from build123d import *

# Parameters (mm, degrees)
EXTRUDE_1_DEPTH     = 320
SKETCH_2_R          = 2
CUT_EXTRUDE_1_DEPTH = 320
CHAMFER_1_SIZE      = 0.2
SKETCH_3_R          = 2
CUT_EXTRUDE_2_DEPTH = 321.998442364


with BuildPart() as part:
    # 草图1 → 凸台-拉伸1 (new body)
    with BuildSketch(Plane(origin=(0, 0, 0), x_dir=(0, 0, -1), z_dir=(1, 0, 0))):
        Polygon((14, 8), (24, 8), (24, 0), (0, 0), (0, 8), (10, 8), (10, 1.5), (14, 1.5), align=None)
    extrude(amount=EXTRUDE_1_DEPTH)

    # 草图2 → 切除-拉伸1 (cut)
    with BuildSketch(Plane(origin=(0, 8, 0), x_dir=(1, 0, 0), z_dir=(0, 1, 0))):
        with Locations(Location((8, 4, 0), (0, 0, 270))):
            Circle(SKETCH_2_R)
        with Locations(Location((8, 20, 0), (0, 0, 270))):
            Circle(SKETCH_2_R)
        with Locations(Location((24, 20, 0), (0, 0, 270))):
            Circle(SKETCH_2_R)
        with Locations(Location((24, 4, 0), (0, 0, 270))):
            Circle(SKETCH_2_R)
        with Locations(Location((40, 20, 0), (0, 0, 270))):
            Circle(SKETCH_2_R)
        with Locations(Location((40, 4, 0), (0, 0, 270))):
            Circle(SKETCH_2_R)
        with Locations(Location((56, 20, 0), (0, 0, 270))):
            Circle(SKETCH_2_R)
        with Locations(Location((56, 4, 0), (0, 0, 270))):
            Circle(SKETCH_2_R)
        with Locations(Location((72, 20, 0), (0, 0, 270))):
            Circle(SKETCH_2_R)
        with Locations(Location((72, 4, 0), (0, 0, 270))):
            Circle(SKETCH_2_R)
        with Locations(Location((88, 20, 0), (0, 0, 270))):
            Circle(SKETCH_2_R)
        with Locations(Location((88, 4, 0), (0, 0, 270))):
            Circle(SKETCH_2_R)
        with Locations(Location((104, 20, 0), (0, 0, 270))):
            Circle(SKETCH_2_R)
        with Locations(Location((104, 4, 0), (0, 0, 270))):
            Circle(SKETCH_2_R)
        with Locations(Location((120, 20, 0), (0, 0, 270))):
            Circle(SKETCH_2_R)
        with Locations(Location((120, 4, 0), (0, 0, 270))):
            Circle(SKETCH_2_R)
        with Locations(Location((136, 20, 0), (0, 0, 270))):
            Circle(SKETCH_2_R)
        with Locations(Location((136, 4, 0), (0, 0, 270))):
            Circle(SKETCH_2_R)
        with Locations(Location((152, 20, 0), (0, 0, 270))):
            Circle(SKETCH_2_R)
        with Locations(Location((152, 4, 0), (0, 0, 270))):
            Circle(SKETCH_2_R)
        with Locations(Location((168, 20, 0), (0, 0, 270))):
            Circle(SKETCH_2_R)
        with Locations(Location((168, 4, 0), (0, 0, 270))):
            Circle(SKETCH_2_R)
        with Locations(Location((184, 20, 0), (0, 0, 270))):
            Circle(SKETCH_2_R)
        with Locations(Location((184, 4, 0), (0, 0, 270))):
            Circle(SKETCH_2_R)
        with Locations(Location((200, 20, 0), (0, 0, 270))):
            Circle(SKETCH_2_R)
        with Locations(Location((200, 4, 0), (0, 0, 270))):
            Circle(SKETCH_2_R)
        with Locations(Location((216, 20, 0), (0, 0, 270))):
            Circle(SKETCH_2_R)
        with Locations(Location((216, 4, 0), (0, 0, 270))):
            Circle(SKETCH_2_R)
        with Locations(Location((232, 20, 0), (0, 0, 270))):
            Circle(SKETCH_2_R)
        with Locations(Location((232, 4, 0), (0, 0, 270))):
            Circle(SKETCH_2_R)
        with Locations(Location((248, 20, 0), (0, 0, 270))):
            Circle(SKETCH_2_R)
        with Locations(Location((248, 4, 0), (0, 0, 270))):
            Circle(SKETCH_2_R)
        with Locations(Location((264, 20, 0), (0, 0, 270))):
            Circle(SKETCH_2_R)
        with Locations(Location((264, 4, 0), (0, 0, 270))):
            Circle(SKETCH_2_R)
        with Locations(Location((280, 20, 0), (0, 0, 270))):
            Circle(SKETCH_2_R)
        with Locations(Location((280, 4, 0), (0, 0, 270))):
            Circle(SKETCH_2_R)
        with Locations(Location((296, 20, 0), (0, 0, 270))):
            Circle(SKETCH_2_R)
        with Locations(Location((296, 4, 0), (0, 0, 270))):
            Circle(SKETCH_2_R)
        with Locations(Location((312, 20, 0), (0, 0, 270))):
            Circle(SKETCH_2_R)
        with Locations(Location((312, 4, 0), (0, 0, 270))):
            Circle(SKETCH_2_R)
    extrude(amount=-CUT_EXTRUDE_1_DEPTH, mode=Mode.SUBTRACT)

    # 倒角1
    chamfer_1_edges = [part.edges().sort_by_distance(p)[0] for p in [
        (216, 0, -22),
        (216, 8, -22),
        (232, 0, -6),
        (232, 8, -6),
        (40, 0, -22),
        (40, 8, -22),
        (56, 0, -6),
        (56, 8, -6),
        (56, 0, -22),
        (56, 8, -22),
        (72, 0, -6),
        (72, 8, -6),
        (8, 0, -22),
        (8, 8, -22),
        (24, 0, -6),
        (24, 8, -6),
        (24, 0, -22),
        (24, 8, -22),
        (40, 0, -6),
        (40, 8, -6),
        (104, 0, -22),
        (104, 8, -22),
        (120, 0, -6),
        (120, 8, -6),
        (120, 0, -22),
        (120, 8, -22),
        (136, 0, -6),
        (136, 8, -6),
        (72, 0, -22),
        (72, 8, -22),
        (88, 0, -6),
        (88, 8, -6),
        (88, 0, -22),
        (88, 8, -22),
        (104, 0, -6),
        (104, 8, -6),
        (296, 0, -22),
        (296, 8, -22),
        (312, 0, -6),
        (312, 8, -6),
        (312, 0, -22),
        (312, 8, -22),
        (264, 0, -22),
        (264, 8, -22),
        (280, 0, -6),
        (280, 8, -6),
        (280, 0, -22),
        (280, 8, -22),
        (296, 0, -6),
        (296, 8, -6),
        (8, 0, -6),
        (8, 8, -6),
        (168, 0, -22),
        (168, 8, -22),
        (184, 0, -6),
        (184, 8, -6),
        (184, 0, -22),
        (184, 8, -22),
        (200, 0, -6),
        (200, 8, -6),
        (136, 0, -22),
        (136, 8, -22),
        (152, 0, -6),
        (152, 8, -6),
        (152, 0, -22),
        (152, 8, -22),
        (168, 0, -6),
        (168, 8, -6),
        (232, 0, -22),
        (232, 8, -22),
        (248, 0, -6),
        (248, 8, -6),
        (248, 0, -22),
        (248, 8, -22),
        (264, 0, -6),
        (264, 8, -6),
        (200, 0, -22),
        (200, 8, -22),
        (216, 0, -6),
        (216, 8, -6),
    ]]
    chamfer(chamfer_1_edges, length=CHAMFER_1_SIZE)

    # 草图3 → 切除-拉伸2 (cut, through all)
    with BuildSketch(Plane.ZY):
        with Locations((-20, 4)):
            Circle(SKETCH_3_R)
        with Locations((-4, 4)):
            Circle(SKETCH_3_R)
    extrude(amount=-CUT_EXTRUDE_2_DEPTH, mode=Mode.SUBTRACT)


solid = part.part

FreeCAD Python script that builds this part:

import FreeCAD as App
import Part
import Sketcher

V = App.Vector
Q = App.Units.Quantity


def edges_at(feature, points):
    """Names of the edges that pass closest to the given points."""
    edges = feature.Shape.Edges
    near = lambda p: min(range(len(edges)), key=lambda i: edges[i].distToShape(Part.Vertex(*p))[0])
    return sorted({f"Edge{near(p) + 1}" for p in points})

doc = App.newDocument("Part")
body = doc.addObject("PartDesign::Body", "Body")

# Sketch on YZ plane
sketch1 = doc.addObject("Sketcher::SketchObject", "Sketch")
body.addObject(sketch1)
sketch1.AttachmentSupport = (doc.YZ_Plane, [""])
sketch1.MapMode = "FlatFace"
sketch1.addGeometry(Part.LineSegment(V(8, -24, 0), V(8, -14, 0)), False)
sketch1.addGeometry(Part.LineSegment(V(8, -14, 0), V(1.5, -14, 0)), False)
sketch1.addGeometry(Part.LineSegment(V(1.5, -14, 0), V(1.5, -10, 0)), False)
sketch1.addGeometry(Part.LineSegment(V(1.5, -10, 0), V(8, -10, 0)), False)
sketch1.addGeometry(Part.LineSegment(V(8, -10, 0), V(8, 0, 0)), False)
sketch1.addGeometry(Part.LineSegment(V(8, 0, 0), V(0, 0, 0)), False)
sketch1.addGeometry(Part.LineSegment(V(0, 0, 0), V(0, -24, 0)), False)
sketch1.addGeometry(Part.LineSegment(V(0, -24, 0), V(8, -24, 0)), False)
sketch1.addConstraint(Sketcher.Constraint("Coincident", 0, 2, 1, 1))
sketch1.addConstraint(Sketcher.Constraint("Coincident", 1, 2, 2, 1))
sketch1.addConstraint(Sketcher.Constraint("Coincident", 2, 2, 3, 1))
sketch1.addConstraint(Sketcher.Constraint("Coincident", 3, 2, 4, 1))
sketch1.addConstraint(Sketcher.Constraint("Coincident", 4, 2, 5, 1))
sketch1.addConstraint(Sketcher.Constraint("Coincident", 5, 2, 6, 1))
sketch1.addConstraint(Sketcher.Constraint("Coincident", 6, 2, 7, 1))
sketch1.addConstraint(Sketcher.Constraint("Coincident", 7, 2, 0, 1))
sketch1.addConstraint(Sketcher.Constraint("Vertical", 0))
sketch1.addConstraint(Sketcher.Constraint("Horizontal", 1))
sketch1.addConstraint(Sketcher.Constraint("Vertical", 2))
sketch1.addConstraint(Sketcher.Constraint("Horizontal", 3))
sketch1.addConstraint(Sketcher.Constraint("Vertical", 4))
sketch1.addConstraint(Sketcher.Constraint("Horizontal", 5))
sketch1.addConstraint(Sketcher.Constraint("Vertical", 6))
sketch1.addConstraint(Sketcher.Constraint("Horizontal", 7))
sketch1.addConstraint(Sketcher.Constraint("Coincident", 5, 2, -1, 1))
sketch1.addConstraint(Sketcher.Constraint("Vertical", 0, 2, 3, 2))
sketch1.addConstraint(Sketcher.Constraint("Equal", 0, 4))
sketch1.addConstraint(Sketcher.Constraint("DistanceX", 5, 2, 5, 1, Q("8 mm")))
sketch1.addConstraint(Sketcher.Constraint("DistanceY", 0, 1, 0, 2, Q("10 mm")))
sketch1.addConstraint(Sketcher.Constraint("DistanceY", 2, 1, 2, 2, Q("4 mm")))
sketch1.addConstraint(Sketcher.Constraint("DistanceX", 1, 2, 1, 1, Q("6.5 mm")))
pad1 = doc.addObject("PartDesign::Pad", "Pad")
body.addObject(pad1)
pad1.Profile = sketch1
pad1.Length = 320

# Sketch on XZ plane
sketch2 = doc.addObject("Sketcher::SketchObject", "Sketch001")
body.addObject(sketch2)
sketch2.AttachmentSupport = (doc.XZ_Plane, [""])
sketch2.MapMode = "FlatFace"
sketch2.AttachmentOffset = App.Placement(V(0, 0, -8), App.Rotation())
sketch2.addGeometry(Part.Circle(V(8, -4, 0), V(0, 0, 1), 2), False)
sketch2.addGeometry(Part.Circle(V(8, -20, 0), V(0, 0, 1), 2), False)
sketch2.addGeometry(Part.Circle(V(24, -20, 0), V(0, 0, 1), 2), False)
sketch2.addGeometry(Part.Circle(V(24, -4, 0), V(0, 0, 1), 2), False)
sketch2.addGeometry(Part.Circle(V(40, -20, 0), V(0, 0, 1), 2), False)
sketch2.addGeometry(Part.Circle(V(40, -4, 0), V(0, 0, 1), 2), False)
sketch2.addGeometry(Part.Circle(V(56, -20, 0), V(0, 0, 1), 2), False)
sketch2.addGeometry(Part.Circle(V(56, -4, 0), V(0, 0, 1), 2), False)
sketch2.addGeometry(Part.Circle(V(72, -20, 0), V(0, 0, 1), 2), False)
sketch2.addGeometry(Part.Circle(V(72, -4, 0), V(0, 0, 1), 2), False)
sketch2.addGeometry(Part.Circle(V(88, -20, 0), V(0, 0, 1), 2), False)
sketch2.addGeometry(Part.Circle(V(88, -4, 0), V(0, 0, 1), 2), False)
sketch2.addGeometry(Part.Circle(V(104, -20, 0), V(0, 0, 1), 2), False)
sketch2.addGeometry(Part.Circle(V(104, -4, 0), V(0, 0, 1), 2), False)
sketch2.addGeometry(Part.Circle(V(120, -20, 0), V(0, 0, 1), 2), False)
sketch2.addGeometry(Part.Circle(V(120, -4, 0), V(0, 0, 1), 2), False)
sketch2.addGeometry(Part.Circle(V(136, -20, 0), V(0, 0, 1), 2), False)
sketch2.addGeometry(Part.Circle(V(136, -4, 0), V(0, 0, 1), 2), False)
sketch2.addGeometry(Part.Circle(V(152, -20, 0), V(0, 0, 1), 2), False)
sketch2.addGeometry(Part.Circle(V(152, -4, 0), V(0, 0, 1), 2), False)
sketch2.addGeometry(Part.Circle(V(168, -20, 0), V(0, 0, 1), 2), False)
sketch2.addGeometry(Part.Circle(V(168, -4, 0), V(0, 0, 1), 2), False)
sketch2.addGeometry(Part.Circle(V(184, -20, 0), V(0, 0, 1), 2), False)
sketch2.addGeometry(Part.Circle(V(184, -4, 0), V(0, 0, 1), 2), False)
sketch2.addGeometry(Part.Circle(V(200, -20, 0), V(0, 0, 1), 2), False)
sketch2.addGeometry(Part.Circle(V(200, -4, 0), V(0, 0, 1), 2), False)
sketch2.addGeometry(Part.Circle(V(216, -20, 0), V(0, 0, 1), 2), False)
sketch2.addGeometry(Part.Circle(V(216, -4, 0), V(0, 0, 1), 2), False)
sketch2.addGeometry(Part.Circle(V(232, -20, 0), V(0, 0, 1), 2), False)
sketch2.addGeometry(Part.Circle(V(232, -4, 0), V(0, 0, 1), 2), False)
sketch2.addGeometry(Part.Circle(V(248, -20, 0), V(0, 0, 1), 2), False)
sketch2.addGeometry(Part.Circle(V(248, -4, 0), V(0, 0, 1), 2), False)
sketch2.addGeometry(Part.Circle(V(264, -20, 0), V(0, 0, 1), 2), False)
sketch2.addGeometry(Part.Circle(V(264, -4, 0), V(0, 0, 1), 2), False)
sketch2.addGeometry(Part.Circle(V(280, -20, 0), V(0, 0, 1), 2), False)
sketch2.addGeometry(Part.Circle(V(280, -4, 0), V(0, 0, 1), 2), False)
sketch2.addGeometry(Part.Circle(V(296, -20, 0), V(0, 0, 1), 2), False)
sketch2.addGeometry(Part.Circle(V(296, -4, 0), V(0, 0, 1), 2), False)
sketch2.addGeometry(Part.Circle(V(312, -20, 0), V(0, 0, 1), 2), False)
sketch2.addGeometry(Part.Circle(V(312, -4, 0), V(0, 0, 1), 2), False)
sketch2.addConstraint(Sketcher.Constraint("Equal", 0, 1))
sketch2.addConstraint(Sketcher.Constraint("Equal", 1, 2))
sketch2.addConstraint(Sketcher.Constraint("Equal", 2, 3))
sketch2.addConstraint(Sketcher.Constraint("Equal", 3, 4))
sketch2.addConstraint(Sketcher.Constraint("Equal", 4, 5))
sketch2.addConstraint(Sketcher.Constraint("Equal", 5, 6))
sketch2.addConstraint(Sketcher.Constraint("Equal", 6, 7))
sketch2.addConstraint(Sketcher.Constraint("Equal", 7, 8))
sketch2.addConstraint(Sketcher.Constraint("Equal", 8, 9))
sketch2.addConstraint(Sketcher.Constraint("Equal", 9, 10))
sketch2.addConstraint(Sketcher.Constraint("Equal", 10, 11))
sketch2.addConstraint(Sketcher.Constraint("Equal", 11, 12))
sketch2.addConstraint(Sketcher.Constraint("Equal", 12, 13))
sketch2.addConstraint(Sketcher.Constraint("Equal", 13, 14))
sketch2.addConstraint(Sketcher.Constraint("Equal", 14, 15))
sketch2.addConstraint(Sketcher.Constraint("Equal", 15, 16))
sketch2.addConstraint(Sketcher.Constraint("Equal", 16, 17))
sketch2.addConstraint(Sketcher.Constraint("Equal", 17, 18))
sketch2.addConstraint(Sketcher.Constraint("Equal", 18, 19))
sketch2.addConstraint(Sketcher.Constraint("Equal", 19, 20))
sketch2.addConstraint(Sketcher.Constraint("Equal", 20, 21))
sketch2.addConstraint(Sketcher.Constraint("Equal", 21, 22))
sketch2.addConstraint(Sketcher.Constraint("Equal", 22, 23))
sketch2.addConstraint(Sketcher.Constraint("Equal", 23, 24))
sketch2.addConstraint(Sketcher.Constraint("Equal", 24, 25))
sketch2.addConstraint(Sketcher.Constraint("Equal", 25, 26))
sketch2.addConstraint(Sketcher.Constraint("Equal", 26, 27))
sketch2.addConstraint(Sketcher.Constraint("Equal", 27, 28))
sketch2.addConstraint(Sketcher.Constraint("Equal", 28, 29))
sketch2.addConstraint(Sketcher.Constraint("Equal", 29, 30))
sketch2.addConstraint(Sketcher.Constraint("Equal", 30, 31))
sketch2.addConstraint(Sketcher.Constraint("Equal", 31, 32))
sketch2.addConstraint(Sketcher.Constraint("Equal", 32, 33))
sketch2.addConstraint(Sketcher.Constraint("Equal", 33, 34))
sketch2.addConstraint(Sketcher.Constraint("Equal", 34, 35))
sketch2.addConstraint(Sketcher.Constraint("Equal", 35, 36))
sketch2.addConstraint(Sketcher.Constraint("Equal", 36, 37))
sketch2.addConstraint(Sketcher.Constraint("Equal", 37, 38))
sketch2.addConstraint(Sketcher.Constraint("Equal", 38, 39))
sketch2.addConstraint(Sketcher.Constraint("Horizontal", 1, 3, 2, 3))
sketch2.addConstraint(Sketcher.Constraint("Horizontal", 0, 3, 3, 3))
sketch2.addConstraint(Sketcher.Constraint("Horizontal", 2, 3, 4, 3))
sketch2.addConstraint(Sketcher.Constraint("Horizontal", 3, 3, 5, 3))
sketch2.addConstraint(Sketcher.Constraint("Horizontal", 4, 3, 6, 3))
sketch2.addConstraint(Sketcher.Constraint("Horizontal", 5, 3, 7, 3))
sketch2.addConstraint(Sketcher.Constraint("Horizontal", 6, 3, 8, 3))
sketch2.addConstraint(Sketcher.Constraint("Horizontal", 7, 3, 9, 3))
sketch2.addConstraint(Sketcher.Constraint("Horizontal", 8, 3, 10, 3))
sketch2.addConstraint(Sketcher.Constraint("Horizontal", 9, 3, 11, 3))
sketch2.addConstraint(Sketcher.Constraint("Horizontal", 10, 3, 12, 3))
sketch2.addConstraint(Sketcher.Constraint("Horizontal", 11, 3, 13, 3))
sketch2.addConstraint(Sketcher.Constraint("Horizontal", 12, 3, 14, 3))
sketch2.addConstraint(Sketcher.Constraint("Horizontal", 13, 3, 15, 3))
sketch2.addConstraint(Sketcher.Constraint("Horizontal", 14, 3, 16, 3))
sketch2.addConstraint(Sketcher.Constraint("Horizontal", 15, 3, 17, 3))
sketch2.addConstraint(Sketcher.Constraint("Horizontal", 16, 3, 18, 3))
sketch2.addConstraint(Sketcher.Constraint("Horizontal", 17, 3, 19, 3))
sketch2.addConstraint(Sketcher.Constraint("Horizontal", 18, 3, 20, 3))
sketch2.addConstraint(Sketcher.Constraint("Horizontal", 19, 3, 21, 3))
sketch2.addConstraint(Sketcher.Constraint("Horizontal", 20, 3, 22, 3))
sketch2.addConstraint(Sketcher.Constraint("Horizontal", 21, 3, 23, 3))
sketch2.addConstraint(Sketcher.Constraint("Horizontal", 22, 3, 24, 3))
sketch2.addConstraint(Sketcher.Constraint("Horizontal", 23, 3, 25, 3))
sketch2.addConstraint(Sketcher.Constraint("Horizontal", 24, 3, 26, 3))
sketch2.addConstraint(Sketcher.Constraint("Horizontal", 25, 3, 27, 3))
sketch2.addConstraint(Sketcher.Constraint("Horizontal", 26, 3, 28, 3))
sketch2.addConstraint(Sketcher.Constraint("Horizontal", 27, 3, 29, 3))
sketch2.addConstraint(Sketcher.Constraint("Horizontal", 28, 3, 30, 3))
sketch2.addConstraint(Sketcher.Constraint("Horizontal", 29, 3, 31, 3))
sketch2.addConstraint(Sketcher.Constraint("Horizontal", 30, 3, 32, 3))
sketch2.addConstraint(Sketcher.Constraint("Horizontal", 31, 3, 33, 3))
sketch2.addConstraint(Sketcher.Constraint("Horizontal", 32, 3, 34, 3))
sketch2.addConstraint(Sketcher.Constraint("Horizontal", 33, 3, 35, 3))
sketch2.addConstraint(Sketcher.Constraint("Horizontal", 34, 3, 36, 3))
sketch2.addConstraint(Sketcher.Constraint("Horizontal", 35, 3, 37, 3))
sketch2.addConstraint(Sketcher.Constraint("Horizontal", 36, 3, 38, 3))
sketch2.addConstraint(Sketcher.Constraint("Horizontal", 37, 3, 39, 3))
sketch2.addConstraint(Sketcher.Constraint("Vertical", 0, 3, 1, 3))
sketch2.addConstraint(Sketcher.Constraint("Vertical", 2, 3, 3, 3))
sketch2.addConstraint(Sketcher.Constraint("Vertical", 4, 3, 5, 3))
sketch2.addConstraint(Sketcher.Constraint("Vertical", 6, 3, 7, 3))
sketch2.addConstraint(Sketcher.Constraint("Vertical", 8, 3, 9, 3))
sketch2.addConstraint(Sketcher.Constraint("Vertical", 10, 3, 11, 3))
sketch2.addConstraint(Sketcher.Constraint("Vertical", 12, 3, 13, 3))
sketch2.addConstraint(Sketcher.Constraint("Vertical", 14, 3, 15, 3))
sketch2.addConstraint(Sketcher.Constraint("Vertical", 16, 3, 17, 3))
sketch2.addConstraint(Sketcher.Constraint("Vertical", 18, 3, 19, 3))
sketch2.addConstraint(Sketcher.Constraint("Vertical", 20, 3, 21, 3))
sketch2.addConstraint(Sketcher.Constraint("Vertical", 22, 3, 23, 3))
sketch2.addConstraint(Sketcher.Constraint("Vertical", 24, 3, 25, 3))
sketch2.addConstraint(Sketcher.Constraint("Vertical", 26, 3, 27, 3))
sketch2.addConstraint(Sketcher.Constraint("Vertical", 28, 3, 29, 3))
sketch2.addConstraint(Sketcher.Constraint("Vertical", 30, 3, 31, 3))
sketch2.addConstraint(Sketcher.Constraint("Vertical", 32, 3, 33, 3))
sketch2.addConstraint(Sketcher.Constraint("Vertical", 34, 3, 35, 3))
sketch2.addConstraint(Sketcher.Constraint("Vertical", 36, 3, 37, 3))
sketch2.addConstraint(Sketcher.Constraint("Vertical", 38, 3, 39, 3))
sketch2.addConstraint(Sketcher.Constraint("Diameter", 0, Q("4 mm")))
sketch2.addConstraint(Sketcher.Constraint("DistanceX", -1, 1, 0, 3, Q("8 mm")))
sketch2.addConstraint(Sketcher.Constraint("DistanceY", 0, 3, -1, 1, Q("4 mm")))
sketch2.addConstraint(Sketcher.Constraint("DistanceY", 1, 3, -1, 1, Q("20 mm")))
sketch2.addConstraint(Sketcher.Constraint("DistanceX", -1, 1, 2, 3, Q("24 mm")))
sketch2.addConstraint(Sketcher.Constraint("DistanceX", -1, 1, 4, 3, Q("40 mm")))
sketch2.addConstraint(Sketcher.Constraint("DistanceX", -1, 1, 6, 3, Q("56 mm")))
sketch2.addConstraint(Sketcher.Constraint("DistanceX", -1, 1, 8, 3, Q("72 mm")))
sketch2.addConstraint(Sketcher.Constraint("DistanceX", -1, 1, 10, 3, Q("88 mm")))
sketch2.addConstraint(Sketcher.Constraint("DistanceX", -1, 1, 12, 3, Q("104 mm")))
sketch2.addConstraint(Sketcher.Constraint("DistanceX", -1, 1, 14, 3, Q("120 mm")))
sketch2.addConstraint(Sketcher.Constraint("DistanceX", -1, 1, 16, 3, Q("136 mm")))
sketch2.addConstraint(Sketcher.Constraint("DistanceX", -1, 1, 18, 3, Q("152 mm")))
sketch2.addConstraint(Sketcher.Constraint("DistanceX", -1, 1, 20, 3, Q("168 mm")))
sketch2.addConstraint(Sketcher.Constraint("DistanceX", -1, 1, 22, 3, Q("184 mm")))
sketch2.addConstraint(Sketcher.Constraint("DistanceX", -1, 1, 24, 3, Q("200 mm")))
sketch2.addConstraint(Sketcher.Constraint("DistanceX", -1, 1, 26, 3, Q("216 mm")))
sketch2.addConstraint(Sketcher.Constraint("DistanceX", -1, 1, 28, 3, Q("232 mm")))
sketch2.addConstraint(Sketcher.Constraint("DistanceX", -1, 1, 30, 3, Q("248 mm")))
sketch2.addConstraint(Sketcher.Constraint("DistanceX", -1, 1, 32, 3, Q("264 mm")))
sketch2.addConstraint(Sketcher.Constraint("DistanceX", -1, 1, 34, 3, Q("280 mm")))
sketch2.addConstraint(Sketcher.Constraint("DistanceX", -1, 1, 36, 3, Q("296 mm")))
sketch2.addConstraint(Sketcher.Constraint("DistanceX", -1, 1, 38, 3, Q("312 mm")))
pocket1 = doc.addObject("PartDesign::Pocket", "Pocket")
body.addObject(pocket1)
pocket1.Profile = sketch2
pocket1.Length = 320
pocket1.Reversed = True
doc.recompute()

chamfer = doc.addObject("PartDesign::Chamfer", "Chamfer")
body.addObject(chamfer)
chamfer.Base = (pocket1, edges_at(pocket1, [
    (216, 0, -22),
    (216, 8, -22),
    (232, 0, -6),
    (232, 8, -6),
    (40, 0, -22),
    (40, 8, -22),
    (56, 0, -6),
    (56, 8, -6),
    (56, 0, -22),
    (56, 8, -22),
    (72, 0, -6),
    (72, 8, -6),
    (8, 0, -22),
    (8, 8, -22),
    (24, 0, -6),
    (24, 8, -6),
    (24, 0, -22),
    (24, 8, -22),
    (40, 0, -6),
    (40, 8, -6),
    (104, 0, -22),
    (104, 8, -22),
    (120, 0, -6),
    (120, 8, -6),
    (120, 0, -22),
    (120, 8, -22),
    (136, 0, -6),
    (136, 8, -6),
    (72, 0, -22),
    (72, 8, -22),
    (88, 0, -6),
    (88, 8, -6),
    (88, 0, -22),
    (88, 8, -22),
    (104, 0, -6),
    (104, 8, -6),
    (296, 0, -22),
    (296, 8, -22),
    (312, 0, -6),
    (312, 8, -6),
    (312, 0, -22),
    (312, 8, -22),
    (264, 0, -22),
    (264, 8, -22),
    (280, 0, -6),
    (280, 8, -6),
    (280, 0, -22),
    (280, 8, -22),
    (296, 0, -6),
    (296, 8, -6),
    (8, 0, -6),
    (8, 8, -6),
    (168, 0, -22),
    (168, 8, -22),
    (184, 0, -6),
    (184, 8, -6),
    (184, 0, -22),
    (184, 8, -22),
    (200, 0, -6),
    (200, 8, -6),
    (136, 0, -22),
    (136, 8, -22),
    (152, 0, -6),
    (152, 8, -6),
    (152, 0, -22),
    (152, 8, -22),
    (168, 0, -6),
    (168, 8, -6),
    (232, 0, -22),
    (232, 8, -22),
    (248, 0, -6),
    (248, 8, -6),
    (248, 0, -22),
    (248, 8, -22),
    (264, 0, -6),
    (264, 8, -6),
    (200, 0, -22),
    (200, 8, -22),
    (216, 0, -6),
    (216, 8, -6),
]))
chamfer.Size = 0.2

# Sketch on YZ plane
sketch3 = doc.addObject("Sketcher::SketchObject", "Sketch002")
body.addObject(sketch3)
sketch3.AttachmentSupport = (doc.YZ_Plane, [""])
sketch3.MapMode = "FlatFace"
sketch3.addGeometry(Part.Circle(V(4, -20, 0), V(0, 0, 1), 2), False)
sketch3.addGeometry(Part.Circle(V(4, -4, 0), V(0, 0, 1), 2), False)
sketch3.addConstraint(Sketcher.Constraint("Equal", 0, 1))
sketch3.addConstraint(Sketcher.Constraint("Vertical", 0, 3, 1, 3))
sketch3.addConstraint(Sketcher.Constraint("Diameter", 0, Q("4 mm")))
sketch3.addConstraint(Sketcher.Constraint("DistanceX", -1, 1, 0, 3, Q("4 mm")))
sketch3.addConstraint(Sketcher.Constraint("DistanceY", 0, 3, -1, 1, Q("20 mm")))
sketch3.addConstraint(Sketcher.Constraint("DistanceY", 1, 3, -1, 1, Q("4 mm")))
pocket2 = doc.addObject("PartDesign::Pocket", "Pocket001")
body.addObject(pocket2)
pocket2.Profile = sketch3
pocket2.Type = "ThroughAll"
pocket2.Reversed = True

doc.recompute()
